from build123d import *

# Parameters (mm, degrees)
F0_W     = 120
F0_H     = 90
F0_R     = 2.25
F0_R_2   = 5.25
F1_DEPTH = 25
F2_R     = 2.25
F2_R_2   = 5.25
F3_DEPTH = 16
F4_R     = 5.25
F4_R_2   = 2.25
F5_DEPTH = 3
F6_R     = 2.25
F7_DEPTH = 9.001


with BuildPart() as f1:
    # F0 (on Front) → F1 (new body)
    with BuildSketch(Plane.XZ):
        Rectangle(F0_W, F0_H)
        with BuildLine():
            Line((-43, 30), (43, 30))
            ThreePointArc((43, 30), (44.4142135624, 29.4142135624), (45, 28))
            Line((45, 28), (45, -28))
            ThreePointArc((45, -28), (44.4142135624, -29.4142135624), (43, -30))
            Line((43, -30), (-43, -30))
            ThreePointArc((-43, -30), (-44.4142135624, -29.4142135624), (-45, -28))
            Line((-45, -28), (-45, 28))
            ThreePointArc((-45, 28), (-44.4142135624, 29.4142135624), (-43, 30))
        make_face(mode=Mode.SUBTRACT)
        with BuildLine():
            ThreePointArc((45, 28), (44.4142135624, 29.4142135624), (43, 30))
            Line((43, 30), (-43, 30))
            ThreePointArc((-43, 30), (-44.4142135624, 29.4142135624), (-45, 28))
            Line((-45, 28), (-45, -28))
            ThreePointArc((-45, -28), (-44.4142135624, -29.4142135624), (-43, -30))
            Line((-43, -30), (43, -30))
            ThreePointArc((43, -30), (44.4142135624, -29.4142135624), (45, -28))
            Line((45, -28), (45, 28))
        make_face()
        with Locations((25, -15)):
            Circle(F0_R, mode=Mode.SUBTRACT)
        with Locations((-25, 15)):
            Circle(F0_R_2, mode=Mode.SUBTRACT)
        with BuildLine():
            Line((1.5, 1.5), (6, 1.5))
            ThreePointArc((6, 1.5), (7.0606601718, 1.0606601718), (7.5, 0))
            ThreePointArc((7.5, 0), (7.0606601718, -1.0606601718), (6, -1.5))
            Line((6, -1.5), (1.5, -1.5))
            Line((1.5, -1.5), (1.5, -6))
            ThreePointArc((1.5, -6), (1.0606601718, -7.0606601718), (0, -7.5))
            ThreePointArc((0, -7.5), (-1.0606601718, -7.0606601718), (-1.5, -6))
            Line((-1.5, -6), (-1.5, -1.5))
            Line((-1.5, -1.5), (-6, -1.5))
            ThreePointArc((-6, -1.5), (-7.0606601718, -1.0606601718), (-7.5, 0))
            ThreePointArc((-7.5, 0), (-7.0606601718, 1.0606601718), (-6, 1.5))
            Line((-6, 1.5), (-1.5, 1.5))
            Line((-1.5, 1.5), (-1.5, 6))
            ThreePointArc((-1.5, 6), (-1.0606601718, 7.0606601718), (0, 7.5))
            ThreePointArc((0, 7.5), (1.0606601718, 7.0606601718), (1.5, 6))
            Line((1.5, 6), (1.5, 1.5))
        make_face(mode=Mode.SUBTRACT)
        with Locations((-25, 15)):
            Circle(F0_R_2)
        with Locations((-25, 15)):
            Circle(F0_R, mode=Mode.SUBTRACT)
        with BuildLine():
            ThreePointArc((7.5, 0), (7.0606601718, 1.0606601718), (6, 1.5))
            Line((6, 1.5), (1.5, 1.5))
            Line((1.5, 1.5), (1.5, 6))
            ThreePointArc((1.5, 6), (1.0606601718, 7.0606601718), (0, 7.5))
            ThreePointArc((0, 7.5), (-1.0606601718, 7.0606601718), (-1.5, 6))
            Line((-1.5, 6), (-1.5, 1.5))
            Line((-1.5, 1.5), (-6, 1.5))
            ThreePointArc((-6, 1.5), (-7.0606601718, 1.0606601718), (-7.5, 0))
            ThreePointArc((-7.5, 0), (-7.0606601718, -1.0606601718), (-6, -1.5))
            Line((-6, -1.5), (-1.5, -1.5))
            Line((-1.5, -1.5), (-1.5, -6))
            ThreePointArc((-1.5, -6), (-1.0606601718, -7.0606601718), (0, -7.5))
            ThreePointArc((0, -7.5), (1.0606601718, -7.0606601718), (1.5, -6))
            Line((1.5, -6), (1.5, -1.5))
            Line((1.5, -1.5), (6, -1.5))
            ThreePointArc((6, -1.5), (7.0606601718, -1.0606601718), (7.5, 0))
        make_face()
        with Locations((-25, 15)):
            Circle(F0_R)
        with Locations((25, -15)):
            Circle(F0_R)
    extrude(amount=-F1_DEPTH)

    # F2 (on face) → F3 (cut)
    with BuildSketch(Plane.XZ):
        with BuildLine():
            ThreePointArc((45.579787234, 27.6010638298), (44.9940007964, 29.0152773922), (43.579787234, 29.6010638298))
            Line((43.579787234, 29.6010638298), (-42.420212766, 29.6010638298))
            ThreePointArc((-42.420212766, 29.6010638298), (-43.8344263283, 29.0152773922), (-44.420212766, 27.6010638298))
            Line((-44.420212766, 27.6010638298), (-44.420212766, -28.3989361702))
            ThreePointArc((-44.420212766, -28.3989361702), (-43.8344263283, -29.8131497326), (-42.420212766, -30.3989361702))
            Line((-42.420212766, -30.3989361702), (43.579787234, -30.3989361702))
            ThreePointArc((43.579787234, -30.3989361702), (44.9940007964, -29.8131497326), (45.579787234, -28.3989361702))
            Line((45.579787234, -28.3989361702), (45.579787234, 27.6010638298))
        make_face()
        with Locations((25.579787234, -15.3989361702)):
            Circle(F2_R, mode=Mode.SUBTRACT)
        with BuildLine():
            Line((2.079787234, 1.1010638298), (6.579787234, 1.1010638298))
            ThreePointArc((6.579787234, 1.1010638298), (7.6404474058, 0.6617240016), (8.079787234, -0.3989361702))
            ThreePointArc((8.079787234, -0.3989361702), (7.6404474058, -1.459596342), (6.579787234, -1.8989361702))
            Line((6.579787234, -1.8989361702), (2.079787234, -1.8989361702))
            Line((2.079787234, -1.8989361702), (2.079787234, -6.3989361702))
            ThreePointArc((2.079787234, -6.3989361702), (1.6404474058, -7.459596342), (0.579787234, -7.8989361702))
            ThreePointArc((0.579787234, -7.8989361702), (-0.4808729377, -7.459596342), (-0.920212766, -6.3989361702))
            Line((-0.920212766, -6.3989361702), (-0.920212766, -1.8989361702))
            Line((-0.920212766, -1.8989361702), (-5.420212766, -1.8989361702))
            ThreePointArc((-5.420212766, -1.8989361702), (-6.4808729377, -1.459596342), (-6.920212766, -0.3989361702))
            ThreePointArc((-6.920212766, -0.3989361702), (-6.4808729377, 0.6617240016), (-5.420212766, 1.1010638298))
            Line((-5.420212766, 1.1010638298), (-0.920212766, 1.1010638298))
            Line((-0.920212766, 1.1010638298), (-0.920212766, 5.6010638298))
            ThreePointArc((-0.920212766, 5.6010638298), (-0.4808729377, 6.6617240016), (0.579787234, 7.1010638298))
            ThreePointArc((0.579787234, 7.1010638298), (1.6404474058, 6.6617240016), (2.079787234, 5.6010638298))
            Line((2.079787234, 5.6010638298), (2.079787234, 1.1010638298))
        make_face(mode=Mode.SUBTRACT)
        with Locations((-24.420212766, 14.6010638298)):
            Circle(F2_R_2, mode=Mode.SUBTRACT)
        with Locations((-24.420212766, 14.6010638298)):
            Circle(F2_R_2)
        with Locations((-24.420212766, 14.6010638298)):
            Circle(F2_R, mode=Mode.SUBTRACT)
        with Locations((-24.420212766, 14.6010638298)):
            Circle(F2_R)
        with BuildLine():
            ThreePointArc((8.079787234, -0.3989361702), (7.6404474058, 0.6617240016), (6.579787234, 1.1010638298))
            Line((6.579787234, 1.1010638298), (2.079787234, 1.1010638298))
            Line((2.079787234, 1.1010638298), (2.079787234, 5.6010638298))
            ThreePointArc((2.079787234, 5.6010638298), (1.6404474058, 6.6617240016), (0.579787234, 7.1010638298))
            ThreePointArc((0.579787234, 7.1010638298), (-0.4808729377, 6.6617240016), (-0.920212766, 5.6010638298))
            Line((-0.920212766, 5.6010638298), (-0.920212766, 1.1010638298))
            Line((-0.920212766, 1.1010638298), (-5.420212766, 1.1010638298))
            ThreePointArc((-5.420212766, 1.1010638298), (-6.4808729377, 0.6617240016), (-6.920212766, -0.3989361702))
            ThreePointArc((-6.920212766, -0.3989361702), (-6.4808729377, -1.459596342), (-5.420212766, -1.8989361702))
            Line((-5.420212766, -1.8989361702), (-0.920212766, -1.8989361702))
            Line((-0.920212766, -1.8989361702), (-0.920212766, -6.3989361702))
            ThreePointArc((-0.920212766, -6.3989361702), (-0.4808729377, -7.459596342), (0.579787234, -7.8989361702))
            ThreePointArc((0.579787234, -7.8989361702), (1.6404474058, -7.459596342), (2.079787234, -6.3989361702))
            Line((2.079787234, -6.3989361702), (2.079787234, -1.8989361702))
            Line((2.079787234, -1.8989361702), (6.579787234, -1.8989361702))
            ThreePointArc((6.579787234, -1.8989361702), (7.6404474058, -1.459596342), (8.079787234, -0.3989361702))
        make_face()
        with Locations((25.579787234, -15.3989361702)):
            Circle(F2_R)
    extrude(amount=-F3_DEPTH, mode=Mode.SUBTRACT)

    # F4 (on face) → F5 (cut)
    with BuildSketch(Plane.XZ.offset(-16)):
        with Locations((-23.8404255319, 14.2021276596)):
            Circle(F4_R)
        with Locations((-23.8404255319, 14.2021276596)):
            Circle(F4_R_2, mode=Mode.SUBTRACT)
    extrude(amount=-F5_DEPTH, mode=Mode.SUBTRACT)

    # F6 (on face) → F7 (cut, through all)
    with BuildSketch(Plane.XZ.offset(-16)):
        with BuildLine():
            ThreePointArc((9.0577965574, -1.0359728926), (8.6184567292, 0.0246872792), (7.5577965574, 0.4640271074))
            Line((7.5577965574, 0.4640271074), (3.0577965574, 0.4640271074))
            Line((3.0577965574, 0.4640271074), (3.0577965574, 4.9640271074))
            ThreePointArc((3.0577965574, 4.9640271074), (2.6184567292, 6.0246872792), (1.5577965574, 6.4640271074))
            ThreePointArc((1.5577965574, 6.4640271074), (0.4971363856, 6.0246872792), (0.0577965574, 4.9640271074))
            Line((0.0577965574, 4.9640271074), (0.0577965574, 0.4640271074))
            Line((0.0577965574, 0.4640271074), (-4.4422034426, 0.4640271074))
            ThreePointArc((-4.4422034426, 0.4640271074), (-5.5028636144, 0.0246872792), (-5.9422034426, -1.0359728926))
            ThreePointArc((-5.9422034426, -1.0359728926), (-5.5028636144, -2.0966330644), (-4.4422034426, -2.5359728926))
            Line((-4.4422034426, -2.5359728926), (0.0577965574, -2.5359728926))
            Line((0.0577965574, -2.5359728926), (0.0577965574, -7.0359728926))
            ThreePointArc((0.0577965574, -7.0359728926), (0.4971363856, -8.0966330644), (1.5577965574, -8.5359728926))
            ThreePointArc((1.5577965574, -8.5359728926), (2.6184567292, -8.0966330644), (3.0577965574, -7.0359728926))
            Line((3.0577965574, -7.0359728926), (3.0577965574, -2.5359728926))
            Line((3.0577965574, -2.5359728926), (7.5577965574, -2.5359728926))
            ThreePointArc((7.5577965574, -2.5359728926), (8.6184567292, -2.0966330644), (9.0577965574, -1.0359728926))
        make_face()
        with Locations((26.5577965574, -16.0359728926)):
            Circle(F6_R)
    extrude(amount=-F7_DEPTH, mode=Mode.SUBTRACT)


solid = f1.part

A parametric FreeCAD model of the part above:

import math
import FreeCAD as App
import Part
import Sketcher
from FreeCAD import Vector
Q = App.Units.Quantity


def add_polygon(sketch, points):
    """Adds a closed chain of lines whose ends are joined by coincident constraints."""
    first, n = sketch.GeometryCount, len(points)
    for a, b in zip(points, points[1:] + points[:1]):
        sketch.addGeometry(Part.LineSegment(App.Vector(*a, 0), App.Vector(*b, 0)), False)
    for i in range(n):
        sketch.addConstraint(Sketcher.Constraint("Coincident", first + i, 2, first + (i + 1) % n, 1))

doc = App.newDocument("Part")
body = doc.addObject("PartDesign::Body", "Body")

# Sketch on XZ plane
sketch1 = body.newObject("Sketcher::SketchObject", "Sketch")
sketch1.AttachmentSupport = (doc.getObject("XZ_Plane"), [""])
sketch1.MapMode = "FlatFace"
add_polygon(sketch1, [(-60, 45), (-60, -45), (60, -45), (60, 45)])  # lines 0-3
sketch1.addConstraint([
    Sketcher.Constraint("Vertical", 0),
    Sketcher.Constraint("Horizontal", 1),
    Sketcher.Constraint("Vertical", 2),
    Sketcher.Constraint("Horizontal", 3),
    Sketcher.Constraint("Symmetric", 0, 2, 2, 2, -1, 1),
    Sketcher.Constraint("DistanceX", 1, 1, 1, 2, Q("120 mm")),
    Sketcher.Constraint("DistanceY", 0, 2, 0, 1, Q("90 mm")),
])
pad1 = body.newObject("PartDesign::Pad", "Pad")
pad1.Profile = sketch1
pad1.Length = 25
pad1.Reversed = True

# Sketch on XZ plane
sketch2 = body.newObject("Sketcher::SketchObject", "Sketch001")
sketch2.AttachmentSupport = (doc.getObject("XZ_Plane"), [""])
sketch2.MapMode = "FlatFace"
sketch2.addGeometry([
    Part.ArcOfCircle(Part.Circle(Vector(43.579787, 27.601064, 0), Vector(0, 0, 1), 2), math.radians(0), math.radians(90)),  # 0
    Part.LineSegment(Vector(43.579787, 29.601064, 0), Vector(-42.420213, 29.601064, 0)),  # 1
    Part.ArcOfCircle(Part.Circle(Vector(-42.420213, 27.601064, 0), Vector(0, 0, 1), 2), math.radians(90), math.radians(180)),  # 2
    Part.LineSegment(Vector(-44.420213, 27.601064, 0), Vector(-44.420213, -28.398936, 0)),  # 3
    Part.ArcOfCircle(Part.Circle(Vector(-42.420213, -28.398936, 0), Vector(0, 0, 1), 2), math.radians(180), math.radians(270)),  # 4
    Part.LineSegment(Vector(-42.420213, -30.398936, 0), Vector(43.579787, -30.398936, 0)),  # 5
    Part.ArcOfCircle(Part.Circle(Vector(43.579787, -28.398936, 0), Vector(0, 0, 1), 2), math.radians(-90), math.radians(0)),  # 6
    Part.LineSegment(Vector(45.579787, -28.398936, 0), Vector(45.579787, 27.601064, 0)),  # 7
], False)
sketch2.addConstraint([
    Sketcher.Constraint("Tangent", 0, 2, 1, 1),
    Sketcher.Constraint("Tangent", 1, 2, 2, 1),
    Sketcher.Constraint("Tangent", 2, 2, 3, 1),
    Sketcher.Constraint("Tangent", 3, 2, 4, 1),
    Sketcher.Constraint("Tangent", 4, 2, 5, 1),
    Sketcher.Constraint("Tangent", 5, 2, 6, 1),
    Sketcher.Constraint("Tangent", 6, 2, 7, 1),
    Sketcher.Constraint("Tangent", 7, 2, 0, 1),
    Sketcher.Constraint("Horizontal", 1),
    Sketcher.Constraint("Vertical", 3),
    Sketcher.Constraint("Horizontal", 5),
    Sketcher.Constraint("Vertical", 7),
    Sketcher.Constraint("Equal", 0, 2),
    Sketcher.Constraint("Equal", 2, 4),
    Sketcher.Constraint("Equal", 4, 6),
    Sketcher.Constraint("Radius", 0, Q("2 mm")),
    Sketcher.Constraint("DistanceX", 1, 2, 1, 1, Q("86 mm")),
    Sketcher.Constraint("DistanceY", 3, 2, 3, 1, Q("56 mm")),
    Sketcher.Constraint("DistanceX", -1, 1, 0, 3, Q("43.579787 mm")),
    Sketcher.Constraint("DistanceY", -1, 1, 0, 3, Q("27.601064 mm")),
])
pocket1 = body.newObject("PartDesign::Pocket", "Pocket")
pocket1.Profile = sketch2
pocket1.Length = 16

# Sketch on XZ plane
sketch3 = body.newObject("Sketcher::SketchObject", "Sketch002")
sketch3.AttachmentSupport = (doc.getObject("XZ_Plane"), [""])
sketch3.MapMode = "FlatFace"
sketch3.AttachmentOffset = App.Placement(Vector(0, 0, -16), App.Rotation())
sketch3.addGeometry([
    Part.Circle(Vector(-23.840426, 14.202128, 0), Vector(0, 0, 1), 5.25),
    Part.Circle(Vector(-23.840426, 14.202128, 0), Vector(0, 0, 1), 2.25),
], False)
sketch3.addConstraint([
    Sketcher.Constraint("Coincident", 1, 3, 0, 3),
    Sketcher.Constraint("Diameter", 0, Q("10.5 mm")),
    Sketcher.Constraint("Diameter", 1, Q("4.5 mm")),
    Sketcher.Constraint("DistanceX", 0, 3, -1, 1, Q("23.840426 mm")),
    Sketcher.Constraint("DistanceY", -1, 1, 0, 3, Q("14.202128 mm")),
])
pocket2 = body.newObject("PartDesign::Pocket", "Pocket001")
pocket2.Profile = sketch3
pocket2.Length = 3

# Sketch on XZ plane
sketch4 = body.newObject("Sketcher::SketchObject", "Sketch003")
sketch4.AttachmentSupport = (doc.getObject("XZ_Plane"), [""])
sketch4.MapMode = "FlatFace"
sketch4.AttachmentOffset = App.Placement(Vector(0, 0, -16), App.Rotation())
sketch4.addGeometry([
    Part.ArcOfCircle(Part.Circle(Vector(7.557797, -1.035973, 0), Vector(0, 0, 1), 1.5), math.radians(0), math.radians(90)),  # 0
    Part.LineSegment(Vector(7.557797, 0.464027, 0), Vector(3.057797, 0.464027, 0)),  # 1
    Part.LineSegment(Vector(3.057797, 0.464027, 0), Vector(3.057797, 4.964027, 0)),  # 2
    Part.ArcOfCircle(Part.Circle(Vector(1.557797, 4.964027, 0), Vector(0, 0, 1), 1.5), math.radians(0), math.radians(90)),  # 3
    Part.ArcOfCircle(Part.Circle(Vector(1.557797, 4.964027, 0), Vector(0, 0, 1), 1.5), math.radians(90), math.radians(180)),  # 4
    Part.LineSegment(Vector(0.057797, 4.964027, 0), Vector(0.057797, 0.464027, 0)),  # 5
    Part.LineSegment(Vector(0.057797, 0.464027, 0), Vector(-4.442203, 0.464027, 0)),  # 6
    Part.ArcOfCircle(Part.Circle(Vector(-4.442203, -1.035973, 0), Vector(0, 0, 1), 1.5), math.radians(90), math.radians(180)),  # 7
    Part.ArcOfCircle(Part.Circle(Vector(-4.442203, -1.035973, 0), Vector(0, 0, 1), 1.5), math.radians(180), math.radians(270)),  # 8
    Part.LineSegment(Vector(-4.442203, -2.535973, 0), Vector(0.057797, -2.535973, 0)),  # 9
    Part.LineSegment(Vector(0.057797, -2.535973, 0), Vector(0.057797, -7.035973, 0)),  # 10
    Part.ArcOfCircle(Part.Circle(Vector(1.557797, -7.035973, 0), Vector(0, 0, 1), 1.5), math.radians(180), math.radians(270)),  # 11
    Part.ArcOfCircle(Part.Circle(Vector(1.557797, -7.035973, 0), Vector(0, 0, 1), 1.5), math.radians(-90), math.radians(0)),  # 12
    Part.LineSegment(Vector(3.057797, -7.035973, 0), Vector(3.057797, -2.535973, 0)),  # 13
    Part.LineSegment(Vector(3.057797, -2.535973, 0), Vector(7.557797, -2.535973, 0)),  # 14
    Part.ArcOfCircle(Part.Circle(Vector(7.557797, -1.035973, 0), Vector(0, 0, 1), 1.5), math.radians(-90), math.radians(0)),  # 15
    Part.Circle(Vector(26.557797, -16.035973, 0), Vector(0, 0, 1), 2.25),  # 16
], False)
sketch4.addConstraint([
    Sketcher.Constraint("Tangent", 0, 2, 1, 1),
    Sketcher.Constraint("Coincident", 1, 2, 2, 1),
    Sketcher.Constraint("Tangent", 2, 2, 3, 1),
    Sketcher.Constraint("Tangent", 3, 2, 4, 1),
    Sketcher.Constraint("Tangent", 4, 2, 5, 1),
    Sketcher.Constraint("Coincident", 5, 2, 6, 1),
    Sketcher.Constraint("Tangent", 6, 2, 7, 1),
    Sketcher.Constraint("Tangent", 7, 2, 8, 1),
    Sketcher.Constraint("Tangent", 8, 2, 9, 1),
    Sketcher.Constraint("Coincident", 9, 2, 10, 1),
    Sketcher.Constraint("Tangent", 10, 2, 11, 1),
    Sketcher.Constraint("Tangent", 11, 2, 12, 1),
    Sketcher.Constraint("Tangent", 12, 2, 13, 1),
    Sketcher.Constraint("Coincident", 13, 2, 14, 1),
    Sketcher.Constraint("Tangent", 14, 2, 15, 1),
    Sketcher.Constraint("Tangent", 15, 2, 0, 1),
    Sketcher.Constraint("Horizontal", 1),
    Sketcher.Constraint("Vertical", 2),
    Sketcher.Constraint("Vertical", 5),
    Sketcher.Constraint("Horizontal", 6),
    Sketcher.Constraint("Horizontal", 9),
    Sketcher.Constraint("Vertical", 10),
    Sketcher.Constraint("Vertical", 13),
    Sketcher.Constraint("Horizontal", 14),
    Sketcher.Constraint("Equal", 0, 3),
    Sketcher.Constraint("Equal", 3, 4),
    Sketcher.Constraint("Equal", 4, 7),
    Sketcher.Constraint("Equal", 7, 8),
    Sketcher.Constraint("Equal", 8, 11),
    Sketcher.Constraint("Equal", 11, 12),
    Sketcher.Constraint("Equal", 12, 15),
    Sketcher.Constraint("Horizontal", 0, 3, 7, 3),
    Sketcher.Constraint("Horizontal", 15, 3, 7, 2),
    Sketcher.Constraint("Horizontal", 7, 2, 15, 2),
    Sketcher.Constraint("Vertical", 4, 3, 11, 3),
    Sketcher.Constraint("Vertical", 12, 3, 3, 2),
    Sketcher.Constraint("Vertical", 3, 2, 11, 2),
    Sketcher.Constraint("Equal", 1, 6),
    Sketcher.Constraint("Equal", 14, 2),
    Sketcher.Constraint("Equal", 5, 10),
    Sketcher.Constraint("Diameter", 16, Q("4.5 mm")),
    Sketcher.Constraint("Radius", 0, Q("1.5 mm")),
    Sketcher.Constraint("DistanceX", 1, 2, 1, 1, Q("4.5 mm")),
    Sketcher.Constraint("DistanceX", 0, 3, 16, 3, Q("19 mm")),
    Sketcher.Constraint("DistanceY", 16, 3, 0, 3, Q("15 mm")),
    Sketcher.Constraint("DistanceX", -1, 1, 0, 3, Q("7.557797 mm")),
    Sketcher.Constraint("DistanceY", 0, 3, -1, 1, Q("1.035973 mm")),
])
pocket3 = body.newObject("PartDesign::Pocket", "Pocket002")
pocket3.Profile = sketch4
pocket3.Type = "ThroughAll"

doc.recompute()
